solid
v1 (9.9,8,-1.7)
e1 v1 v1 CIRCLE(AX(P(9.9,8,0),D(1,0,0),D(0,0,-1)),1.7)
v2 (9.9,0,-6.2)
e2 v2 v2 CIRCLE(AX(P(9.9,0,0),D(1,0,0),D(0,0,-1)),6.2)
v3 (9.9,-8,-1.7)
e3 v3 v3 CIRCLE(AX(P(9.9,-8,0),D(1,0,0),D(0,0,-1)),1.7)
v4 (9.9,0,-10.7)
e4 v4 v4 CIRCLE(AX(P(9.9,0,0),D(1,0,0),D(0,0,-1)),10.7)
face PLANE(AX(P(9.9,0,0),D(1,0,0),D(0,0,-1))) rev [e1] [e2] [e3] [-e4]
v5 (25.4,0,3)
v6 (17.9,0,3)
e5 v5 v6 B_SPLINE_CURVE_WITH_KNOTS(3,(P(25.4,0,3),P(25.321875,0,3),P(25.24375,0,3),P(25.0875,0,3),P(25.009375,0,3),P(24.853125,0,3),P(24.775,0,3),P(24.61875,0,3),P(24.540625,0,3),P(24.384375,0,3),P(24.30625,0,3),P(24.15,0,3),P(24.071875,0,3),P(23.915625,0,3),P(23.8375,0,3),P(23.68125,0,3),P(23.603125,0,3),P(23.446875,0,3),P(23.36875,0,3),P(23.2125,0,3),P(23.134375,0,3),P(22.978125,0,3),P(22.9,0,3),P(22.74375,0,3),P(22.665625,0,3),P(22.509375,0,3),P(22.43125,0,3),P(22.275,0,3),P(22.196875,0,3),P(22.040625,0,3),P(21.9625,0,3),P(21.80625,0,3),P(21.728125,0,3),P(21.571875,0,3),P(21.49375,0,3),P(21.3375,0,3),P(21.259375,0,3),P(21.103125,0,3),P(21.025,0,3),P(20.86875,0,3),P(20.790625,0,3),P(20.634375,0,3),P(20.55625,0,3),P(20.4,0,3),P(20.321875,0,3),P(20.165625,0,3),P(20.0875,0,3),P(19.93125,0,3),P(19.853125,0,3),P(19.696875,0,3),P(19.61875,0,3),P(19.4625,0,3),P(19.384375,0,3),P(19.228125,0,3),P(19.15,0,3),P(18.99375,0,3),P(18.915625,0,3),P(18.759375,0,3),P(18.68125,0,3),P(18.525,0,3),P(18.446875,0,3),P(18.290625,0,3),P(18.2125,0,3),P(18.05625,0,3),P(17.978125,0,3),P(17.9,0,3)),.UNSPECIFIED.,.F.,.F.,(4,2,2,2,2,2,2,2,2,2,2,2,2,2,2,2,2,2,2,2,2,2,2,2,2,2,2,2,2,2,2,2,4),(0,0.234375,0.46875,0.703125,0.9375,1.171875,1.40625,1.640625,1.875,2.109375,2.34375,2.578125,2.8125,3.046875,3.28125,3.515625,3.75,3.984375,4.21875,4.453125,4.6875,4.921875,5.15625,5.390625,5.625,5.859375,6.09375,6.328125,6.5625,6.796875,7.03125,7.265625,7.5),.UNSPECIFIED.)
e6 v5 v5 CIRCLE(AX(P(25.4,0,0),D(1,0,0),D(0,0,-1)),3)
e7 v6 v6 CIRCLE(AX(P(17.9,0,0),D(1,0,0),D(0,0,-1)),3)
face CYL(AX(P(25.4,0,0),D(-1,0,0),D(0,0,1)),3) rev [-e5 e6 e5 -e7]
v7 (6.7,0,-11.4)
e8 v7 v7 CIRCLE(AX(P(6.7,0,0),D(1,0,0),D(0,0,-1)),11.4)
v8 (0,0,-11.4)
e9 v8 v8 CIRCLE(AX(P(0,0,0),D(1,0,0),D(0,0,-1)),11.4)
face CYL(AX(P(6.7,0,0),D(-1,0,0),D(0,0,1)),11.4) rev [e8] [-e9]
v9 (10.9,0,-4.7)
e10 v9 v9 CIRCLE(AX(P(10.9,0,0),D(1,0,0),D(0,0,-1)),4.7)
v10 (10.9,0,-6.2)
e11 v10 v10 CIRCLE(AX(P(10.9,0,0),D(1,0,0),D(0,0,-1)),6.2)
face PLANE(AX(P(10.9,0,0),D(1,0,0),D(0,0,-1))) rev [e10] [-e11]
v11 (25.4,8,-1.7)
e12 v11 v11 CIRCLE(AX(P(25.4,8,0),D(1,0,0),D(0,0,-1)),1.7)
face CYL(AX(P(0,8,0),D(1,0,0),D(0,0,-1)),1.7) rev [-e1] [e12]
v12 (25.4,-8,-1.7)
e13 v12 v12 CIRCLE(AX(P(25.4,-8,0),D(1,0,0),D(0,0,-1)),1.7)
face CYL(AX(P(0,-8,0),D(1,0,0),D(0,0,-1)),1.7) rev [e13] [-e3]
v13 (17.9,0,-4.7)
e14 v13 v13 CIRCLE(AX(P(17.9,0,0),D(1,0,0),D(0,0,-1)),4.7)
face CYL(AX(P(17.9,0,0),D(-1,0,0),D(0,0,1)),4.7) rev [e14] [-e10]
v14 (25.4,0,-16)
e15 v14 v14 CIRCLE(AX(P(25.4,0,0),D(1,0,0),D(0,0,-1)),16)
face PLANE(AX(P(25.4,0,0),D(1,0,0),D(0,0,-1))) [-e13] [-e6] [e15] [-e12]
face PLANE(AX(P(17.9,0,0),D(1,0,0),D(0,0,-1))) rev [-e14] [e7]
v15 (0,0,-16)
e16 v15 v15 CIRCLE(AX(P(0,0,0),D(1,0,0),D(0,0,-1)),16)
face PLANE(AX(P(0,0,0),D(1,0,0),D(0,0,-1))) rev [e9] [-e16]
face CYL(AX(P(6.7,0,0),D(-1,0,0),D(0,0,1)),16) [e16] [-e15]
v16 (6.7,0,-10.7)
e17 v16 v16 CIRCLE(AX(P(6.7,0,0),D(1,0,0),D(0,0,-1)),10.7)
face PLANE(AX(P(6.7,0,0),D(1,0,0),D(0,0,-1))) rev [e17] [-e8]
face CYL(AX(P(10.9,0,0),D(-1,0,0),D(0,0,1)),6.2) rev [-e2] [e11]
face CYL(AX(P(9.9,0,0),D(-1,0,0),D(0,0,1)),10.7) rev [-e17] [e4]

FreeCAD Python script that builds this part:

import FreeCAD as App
import Part
import Sketcher
Q = App.Units.Quantity

doc = App.newDocument("Part")
body = doc.addObject("PartDesign::Body", "Body")

sketch1 = body.newObject("Sketcher::SketchObject", "Sketch")
sketch1.AttachmentSupport = (doc.getObject("YZ_Plane"), [""])
sketch1.MapMode = "FlatFace"
sketch1.addGeometry([
    Part.Circle(App.Vector(0, 0, 0), App.Vector(0, 0, 1), 16),
    Part.Circle(App.Vector(0, 0, 0), App.Vector(0, 0, 1), 11),
], False)
sketch1.addConstraint([
    Sketcher.Constraint("Coincident", 0, 3, -1, 1),
    Sketcher.Constraint("Coincident", 1, 3, -1, 1),
    Sketcher.Constraint("Diameter", 0, Q("32 mm")),
    Sketcher.Constraint("Diameter", 1, Q("22.8 mm")),
])
pad1 = body.newObject("PartDesign::Pad", "Pad")
pad1.Profile = sketch1
pad1.Length = 6.7

sketch2 = body.newObject("Sketcher::SketchObject", "Sketch001")
sketch2.AttachmentSupport = (doc.getObject("YZ_Plane"), [""])
sketch2.MapMode = "FlatFace"
sketch2.AttachmentOffset = App.Placement(App.Vector(0, 0, 6.7), App.Rotation())
sketch2.addGeometry([
    Part.Circle(App.Vector(0, 0, 0), App.Vector(0, 0, 1), 16),
    Part.Circle(App.Vector(0, 0, 0), App.Vector(0, 0, 1), 11),
], False)
sketch2.addConstraint([
    Sketcher.Constraint("Coincident", 0, 3, -1, 1),
    Sketcher.Constraint("Coincident", 1, 3, -1, 1),
    Sketcher.Constraint("Diameter", 0, Q("32 mm")),
    Sketcher.Constraint("Diameter", 1, Q("21.4 mm")),
])
pad2 = body.newObject("PartDesign::Pad", "Pad001")
pad2.Profile = sketch2
pad2.Length = 3.2

sketch3 = body.newObject("Sketcher::SketchObject", "Sketch002")
sketch3.AttachmentSupport = (doc.getObject("YZ_Plane"), [""])
sketch3.MapMode = "FlatFace"
sketch3.AttachmentOffset = App.Placement(App.Vector(0, 0, 9.9), App.Rotation())
sketch3.addGeometry([
    Part.Circle(App.Vector(0, 0, 0), App.Vector(0, 0, 1), 16),
    Part.Circle(App.Vector(0, 0, 0), App.Vector(0, 0, 1), 6),
], False)
sketch3.addConstraint([
    Sketcher.Constraint("Coincident", 0, 3, -1, 1),
    Sketcher.Constraint("Coincident", 1, 3, -1, 1),
    Sketcher.Constraint("Diameter", 0, Q("32 mm")),
    Sketcher.Constraint("Diameter", 1, Q("12.4 mm")),
])
pad3 = body.newObject("PartDesign::Pad", "Pad002")
pad3.Profile = sketch3
pad3.Length = 1

sketch4 = body.newObject("Sketcher::SketchObject", "Sketch003")
sketch4.AttachmentSupport = (doc.getObject("YZ_Plane"), [""])
sketch4.MapMode = "FlatFace"
sketch4.AttachmentOffset = App.Placement(App.Vector(0, 0, 10.9), App.Rotation())
sketch4.addGeometry([
    Part.Circle(App.Vector(0, 0, 0), App.Vector(0, 0, 1), 16),
    Part.Circle(App.Vector(0, 0, 0), App.Vector(0, 0, 1), 4.7),
], False)
sketch4.addConstraint([
    Sketcher.Constraint("Coincident", 0, 3, -1, 1),
    Sketcher.Constraint("Coincident", 1, 3, -1, 1),
    Sketcher.Constraint("Diameter", 0, Q("32 mm")),
    Sketcher.Constraint("Diameter", 1, Q("9.4 mm")),
])
pad4 = body.newObject("PartDesign::Pad", "Pad003")
pad4.Profile = sketch4
pad4.Length = 7

sketch5 = body.newObject("Sketcher::SketchObject", "Sketch004")
sketch5.AttachmentSupport = (doc.getObject("YZ_Plane"), [""])
sketch5.MapMode = "FlatFace"
sketch5.AttachmentOffset = App.Placement(App.Vector(0, 0, 17.9), App.Rotation())
sketch5.addGeometry([
    Part.Circle(App.Vector(0, 0, 0), App.Vector(0, 0, 1), 16),
    Part.Circle(App.Vector(0, 0, 0), App.Vector(0, 0, 1), 3),
], False)
sketch5.addConstraint([
    Sketcher.Constraint("Coincident", 0, 3, -1, 1),
    Sketcher.Constraint("Coincident", 1, 3, -1, 1),
    Sketcher.Constraint("Diameter", 0, Q("32 mm")),
    Sketcher.Constraint("Diameter", 1, Q("6 mm")),
])
pad5 = body.newObject("PartDesign::Pad", "Pad004")
pad5.Profile = sketch5
pad5.Length = 7.5

sketch6 = body.newObject("Sketcher::SketchObject", "Sketch005")
sketch6.AttachmentSupport = (doc.getObject("YZ_Plane"), [""])
sketch6.MapMode = "FlatFace"
sketch6.AttachmentOffset = App.Placement(App.Vector(0, 0, 25.4), App.Rotation())
sketch6.addGeometry([
    Part.Circle(App.Vector(8, 0, 0), App.Vector(0, 0, 1), 1.7),
    Part.Circle(App.Vector(-8, 0, 0), App.Vector(0, 0, 1), 1.7),
], False)
sketch6.addConstraint([
    Sketcher.Constraint("Equal", 0, 1),
    Sketcher.Constraint("Symmetric", 0, 3, 1, 3, -1, 1),
    Sketcher.Constraint("PointOnObject", 0, 3, -1),
    Sketcher.Constraint("Diameter", 0, Q("3.4 mm")),
    Sketcher.Constraint("DistanceX", -1, 1, 0, 3, Q("8 mm")),
])
pocket1 = body.newObject("PartDesign::Pocket", "Pocket")
pocket1.Profile = sketch6
pocket1.Length = 25.4

doc.recompute()
